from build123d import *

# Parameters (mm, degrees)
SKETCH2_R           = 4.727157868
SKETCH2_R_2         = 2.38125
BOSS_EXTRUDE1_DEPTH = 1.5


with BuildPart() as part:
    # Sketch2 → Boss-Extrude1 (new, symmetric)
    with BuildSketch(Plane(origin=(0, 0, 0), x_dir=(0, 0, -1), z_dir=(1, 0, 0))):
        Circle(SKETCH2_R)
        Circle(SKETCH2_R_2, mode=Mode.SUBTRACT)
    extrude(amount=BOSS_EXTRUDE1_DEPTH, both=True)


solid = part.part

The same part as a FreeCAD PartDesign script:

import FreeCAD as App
import Part
import Sketcher

V = App.Vector
Q = App.Units.Quantity

doc = App.newDocument("Part")
params = doc.addObject("Spreadsheet::Sheet", "Params")
for row, (alias, value) in enumerate([
    ("pad1_length", "3 mm"),
], start=1):
    params.set(f"A{row}", alias)
    params.set(f"B{row}", "=" + value)
    params.setAlias(f"B{row}", alias)

body = doc.addObject("PartDesign::Body", "Body")

# Sketch on YZ plane
sketch1 = body.newObject("Sketcher::SketchObject", "Sketch")
sketch1.AttachmentSupport = (doc.getObject("YZ_Plane"), [""])
sketch1.MapMode = "FlatFace"
sketch1.addGeometry([
    Part.Circle(V(0, 0, 0), V(0, 0, 1), 4.7),
    Part.Circle(V(0, 0, 0), V(0, 0, 1), 2.4),
], False)
sketch1.addConstraint([
    Sketcher.Constraint("Coincident", 0, 3, -1, 1),
    Sketcher.Constraint("Coincident", 1, 3, -1, 1),
    Sketcher.Constraint("Diameter", 1, Q("4.7625 mm")),
    Sketcher.Constraint("Diameter", 0, Q("9.454316 mm")),
])
pad1 = body.newObject("PartDesign::Pad", "Pad")
pad1.Profile = sketch1
pad1.setExpression("Length", "Params.pad1_length")
pad1.Midplane = True

doc.recompute()
